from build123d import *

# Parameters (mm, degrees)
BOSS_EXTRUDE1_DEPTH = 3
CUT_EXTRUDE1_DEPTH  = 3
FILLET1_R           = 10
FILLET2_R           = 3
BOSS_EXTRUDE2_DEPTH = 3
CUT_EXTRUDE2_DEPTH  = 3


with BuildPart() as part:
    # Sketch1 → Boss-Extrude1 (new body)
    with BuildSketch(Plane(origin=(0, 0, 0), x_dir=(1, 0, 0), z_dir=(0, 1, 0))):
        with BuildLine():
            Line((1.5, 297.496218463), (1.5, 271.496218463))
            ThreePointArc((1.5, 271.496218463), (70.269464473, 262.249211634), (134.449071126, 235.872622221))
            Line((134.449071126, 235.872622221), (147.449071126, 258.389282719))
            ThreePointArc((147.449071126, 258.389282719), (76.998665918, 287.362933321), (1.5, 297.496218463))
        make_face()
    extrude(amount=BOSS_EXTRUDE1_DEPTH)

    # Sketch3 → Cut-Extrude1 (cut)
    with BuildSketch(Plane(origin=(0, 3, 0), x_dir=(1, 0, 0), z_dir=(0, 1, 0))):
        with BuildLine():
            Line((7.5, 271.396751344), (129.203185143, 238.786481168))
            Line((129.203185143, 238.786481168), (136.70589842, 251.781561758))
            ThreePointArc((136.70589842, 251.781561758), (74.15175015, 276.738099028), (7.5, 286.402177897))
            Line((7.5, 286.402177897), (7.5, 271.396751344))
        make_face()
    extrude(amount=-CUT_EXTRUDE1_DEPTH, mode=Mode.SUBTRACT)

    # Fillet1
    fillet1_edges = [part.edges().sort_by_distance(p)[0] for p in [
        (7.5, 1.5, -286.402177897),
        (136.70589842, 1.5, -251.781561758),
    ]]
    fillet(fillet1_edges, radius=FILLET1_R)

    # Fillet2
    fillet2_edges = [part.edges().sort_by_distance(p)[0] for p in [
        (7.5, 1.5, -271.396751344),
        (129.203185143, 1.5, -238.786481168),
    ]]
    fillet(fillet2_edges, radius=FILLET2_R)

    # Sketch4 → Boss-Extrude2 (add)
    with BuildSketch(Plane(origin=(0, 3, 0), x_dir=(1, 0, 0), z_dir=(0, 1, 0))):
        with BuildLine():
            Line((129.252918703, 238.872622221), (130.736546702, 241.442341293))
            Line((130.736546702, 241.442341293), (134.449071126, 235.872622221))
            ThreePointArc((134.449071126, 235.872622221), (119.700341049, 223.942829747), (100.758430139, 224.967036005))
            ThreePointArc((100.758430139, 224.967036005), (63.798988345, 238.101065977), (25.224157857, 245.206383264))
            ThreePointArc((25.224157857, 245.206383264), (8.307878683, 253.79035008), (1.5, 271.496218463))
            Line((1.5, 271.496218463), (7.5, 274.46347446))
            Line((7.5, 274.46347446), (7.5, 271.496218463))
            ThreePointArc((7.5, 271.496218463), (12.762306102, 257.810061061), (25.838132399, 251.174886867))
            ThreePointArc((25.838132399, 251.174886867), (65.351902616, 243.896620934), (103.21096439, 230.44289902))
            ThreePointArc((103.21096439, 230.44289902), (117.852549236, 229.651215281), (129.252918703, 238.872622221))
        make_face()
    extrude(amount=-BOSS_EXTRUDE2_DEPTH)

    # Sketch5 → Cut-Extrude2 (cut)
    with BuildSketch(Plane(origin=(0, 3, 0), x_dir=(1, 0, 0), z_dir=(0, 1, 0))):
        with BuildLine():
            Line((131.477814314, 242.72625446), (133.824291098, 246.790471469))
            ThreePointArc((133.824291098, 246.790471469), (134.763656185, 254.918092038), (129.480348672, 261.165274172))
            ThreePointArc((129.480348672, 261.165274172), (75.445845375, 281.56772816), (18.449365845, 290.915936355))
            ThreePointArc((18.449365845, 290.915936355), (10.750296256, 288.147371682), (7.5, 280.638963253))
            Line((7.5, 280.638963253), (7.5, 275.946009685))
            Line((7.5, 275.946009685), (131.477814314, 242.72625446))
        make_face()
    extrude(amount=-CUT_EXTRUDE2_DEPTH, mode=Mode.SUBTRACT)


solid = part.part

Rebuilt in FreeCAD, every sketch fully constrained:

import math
import FreeCAD as App
import Part
import Sketcher
Q = App.Units.Quantity


def edges_at(feature, points):
    """Names of the edges that pass closest to the given points."""
    edges = feature.Shape.Edges
    near = lambda p: min(range(len(edges)), key=lambda i: edges[i].distToShape(Part.Vertex(*p))[0])
    return sorted({f"Edge{near(p) + 1}" for p in points})

doc = App.newDocument("Part")
body = doc.addObject("PartDesign::Body", "Body")

sketch1 = body.newObject("Sketcher::SketchObject", "Sketch")
sketch1.AttachmentSupport = (doc.getObject("XZ_Plane"), [""])
sketch1.MapMode = "FlatFace"
sketch1.addGeometry([
    Part.LineSegment(App.Vector(2, -297, 0), App.Vector(2, -271, 0)),
    Part.ArcOfCircle(Part.Circle(App.Vector(0, 0, 0), App.Vector(0, 0, 1), 272), math.radians(-90), math.radians(-60)),
    Part.LineSegment(App.Vector(134, -236, 0), App.Vector(147, -258, 0)),
    Part.ArcOfCircle(Part.Circle(App.Vector(0, 0, 0), App.Vector(0, 0, 1), 297), math.radians(-90), math.radians(-60)),
], False)
sketch1.addConstraint([
    Sketcher.Constraint("Coincident", 0, 2, 1, 1),
    Sketcher.Constraint("Coincident", 1, 2, 2, 1),
    Sketcher.Constraint("Coincident", 2, 2, 3, 2),
    Sketcher.Constraint("Coincident", 3, 1, 0, 1),
    Sketcher.Constraint("Vertical", 0),
    Sketcher.Constraint("Coincident", 1, 3, -1, 1),
    Sketcher.Constraint("Coincident", 3, 3, -1, 1),
    Sketcher.Constraint("Radius", 3, 297.5),
    Sketcher.Constraint("DistanceY", 0, 1, 0, 2, 26.0),
    Sketcher.Constraint("Angle", 2, Q("-60 deg")),
    Sketcher.Constraint("DistanceX", -1, 1, 0, 2, 1.5),
    Sketcher.Constraint("DistanceX", -1, 1, 1, 2, 134.449071),
])
pad1 = body.newObject("PartDesign::Pad", "Pad")
pad1.Profile = sketch1
pad1.Length = 3
pad1.Reversed = True

sketch2 = body.newObject("Sketcher::SketchObject", "Sketch001")
sketch2.AttachmentSupport = (doc.getObject("XZ_Plane"), [""])
sketch2.MapMode = "FlatFace"
sketch2.AttachmentOffset = App.Placement(App.Vector(0, 0, -3), App.Rotation())
sketch2.addGeometry([
    Part.LineSegment(App.Vector(8, -271, 0), App.Vector(129, -239, 0)),
    Part.LineSegment(App.Vector(129, -239, 0), App.Vector(137, -252, 0)),
    Part.ArcOfCircle(Part.Circle(App.Vector(0, 0, 0), App.Vector(0, 0, 1), 287), math.radians(-88), math.radians(-62)),
    Part.LineSegment(App.Vector(8, -286, 0), App.Vector(8, -271, 0)),
], False)
sketch2.addConstraint([
    Sketcher.Constraint("Coincident", 0, 2, 1, 1),
    Sketcher.Constraint("Coincident", 1, 2, 2, 2),
    Sketcher.Constraint("Coincident", 2, 1, 3, 1),
    Sketcher.Constraint("Coincident", 3, 2, 0, 1),
    Sketcher.Constraint("Vertical", 3),
    Sketcher.Constraint("Coincident", 2, 3, -1, 1),
    Sketcher.Constraint("Angle", 0, Q("15 deg")),
    Sketcher.Constraint("Angle", 1, Q("-60 deg")),
    Sketcher.Constraint("DistanceX", -1, 1, 3, 2, 7.5),
    Sketcher.Constraint("Radius", 2, 286.500362),
    Sketcher.Constraint("DistanceX", -1, 1, 1, 2, 136.705898),
    Sketcher.Constraint("Distance", 0, 125.996409),
])
pocket1 = body.newObject("PartDesign::Pocket", "Pocket")
pocket1.Profile = sketch2
pocket1.Length = 3
pocket1.Reversed = True
doc.recompute()

fillet = body.newObject("PartDesign::Fillet", "Fillet")
fillet.Base = (pocket1, edges_at(pocket1, [(7.5, 1.5, -286.402), (136.706, 1.5, -251.782)]))
fillet.Radius = 10
doc.recompute()

fillet2 = body.newObject("PartDesign::Fillet", "Fillet001")
fillet2.Base = (fillet, edges_at(fillet, [(7.5, 1.5, -271.397), (129.203, 1.5, -238.786)]))
fillet2.Radius = 3

sketch3 = body.newObject("Sketcher::SketchObject", "Sketch002")
sketch3.AttachmentSupport = (doc.getObject("XZ_Plane"), [""])
sketch3.MapMode = "FlatFace"
sketch3.AttachmentOffset = App.Placement(App.Vector(0, 0, -3), App.Rotation())
sketch3.addGeometry([
    Part.LineSegment(App.Vector(130.7, -241.4, 0), App.Vector(129.3, -238.9, 0)),
    Part.ArcOfCircle(Part.Circle(App.Vector(111.6, -249.1, 0), App.Vector(0, 0, 1), 20.4), math.radians(30), math.radians(114)),
    Part.ArcOfCircle(Part.Circle(App.Vector(0, 0, 0), App.Vector(0, 0, 1), 252.5), math.radians(-84.13), math.radians(-65.87)),
    Part.ArcOfCircle(Part.Circle(App.Vector(27.9, -271.5, 0), App.Vector(0, 0, 1), 20.4), math.radians(96), math.radians(180)),
    Part.LineSegment(App.Vector(7.5, -271.5, 0), App.Vector(7.5, -274.5, 0)),
    Part.LineSegment(App.Vector(7.5, -274.5, 0), App.Vector(1.5, -271.5, 0)),
    Part.ArcOfCircle(Part.Circle(App.Vector(27.9, -271.5, 0), App.Vector(0, 0, 1), 26.4), math.radians(96), math.radians(180)),
    Part.ArcOfCircle(Part.Circle(App.Vector(0, 0, 0), App.Vector(0, 0, 1), 246.5), math.radians(-84.13), math.radians(-65.87)),
    Part.ArcOfCircle(Part.Circle(App.Vector(111.6, -249.1, 0), App.Vector(0, 0, 1), 26.4), math.radians(30), math.radians(114)),
    Part.LineSegment(App.Vector(134.4, -235.9, 0), App.Vector(130.7, -241.4, 0)),
], False)
sketch3.addConstraint([
    Sketcher.Constraint("Tangent", 0, 2, 1, 1),
    Sketcher.Constraint("Tangent", 1, 2, 2, 2),
    Sketcher.Constraint("Tangent", 2, 1, 3, 1),
    Sketcher.Constraint("Tangent", 3, 2, 4, 1),
    Sketcher.Constraint("Coincident", 4, 2, 5, 1),
    Sketcher.Constraint("Coincident", 5, 2, 6, 2),
    Sketcher.Constraint("Tangent", 6, 1, 7, 1),
    Sketcher.Constraint("Tangent", 7, 2, 8, 2),
    Sketcher.Constraint("Coincident", 8, 1, 9, 1),
    Sketcher.Constraint("Coincident", 9, 2, 0, 1),
    Sketcher.Constraint("Vertical", 4),
    Sketcher.Constraint("Coincident", 2, 3, -1, 1),
    Sketcher.Constraint("Coincident", 7, 3, -1, 1),
    Sketcher.Constraint("Coincident", 6, 3, 3, 3),
    Sketcher.Constraint("Coincident", 8, 3, 1, 3),
    Sketcher.Constraint("Equal", 1, 3),
    Sketcher.Constraint("Horizontal", 3, 2, 5, 2),
    Sketcher.Constraint("Equal", 5, 9),
    Sketcher.Constraint("Angle", 0, Q("120 deg")),
    Sketcher.Constraint("DistanceX", 5, 2, 3, 2, 6.0),
    Sketcher.Constraint("DistanceY", 0, 2, 8, 1, 3.0),
    Sketcher.Constraint("DistanceX", -1, 1, 3, 2, 7.5),
    Sketcher.Constraint("Radius", 1, 20.428569),
    Sketcher.Constraint("Radius", 2, 252.500362),
    Sketcher.Constraint("DistanceY", 1, 2, -1, 1, 230.442899),
    Sketcher.Constraint("DistanceY", 4, 2, 4, 1, 2.967256),
])
pad2 = body.newObject("PartDesign::Pad", "Pad001")
pad2.Profile = sketch3
pad2.Length = 3

sketch4 = body.newObject("Sketcher::SketchObject", "Sketch003")
sketch4.AttachmentSupport = (doc.getObject("XZ_Plane"), [""])
sketch4.MapMode = "FlatFace"
sketch4.AttachmentOffset = App.Placement(App.Vector(0, 0, -3), App.Rotation())
sketch4.addGeometry([
    Part.LineSegment(App.Vector(131.5, -242.7, 0), App.Vector(133.8, -246.8, 0)),
    Part.ArcOfCircle(Part.Circle(App.Vector(124.9, -251.9, 0), App.Vector(0, 0, 1), 10.3), math.radians(-64), math.radians(30)),
    Part.ArcOfCircle(Part.Circle(App.Vector(0, 0, 0), App.Vector(0, 0, 1), 291.5), math.radians(-86), math.radians(-64)),
    Part.ArcOfCircle(Part.Circle(App.Vector(17.8, -280.6, 0), App.Vector(0, 0, 1), 10.3), math.radians(180), math.radians(274)),
    Part.LineSegment(App.Vector(7.5, -280.6, 0), App.Vector(7.5, -275.9, 0)),
    Part.LineSegment(App.Vector(7.5, -275.9, 0), App.Vector(131.5, -242.7, 0)),
], False)
sketch4.addConstraint([
    Sketcher.Constraint("Tangent", 0, 2, 1, 2),
    Sketcher.Constraint("Tangent", 1, 1, 2, 2),
    Sketcher.Constraint("Tangent", 2, 1, 3, 2),
    Sketcher.Constraint("Tangent", 3, 1, 4, 1),
    Sketcher.Constraint("Coincident", 4, 2, 5, 1),
    Sketcher.Constraint("Coincident", 5, 2, 0, 1),
    Sketcher.Constraint("Vertical", 4),
    Sketcher.Constraint("Coincident", 2, 3, -1, 1),
    Sketcher.Constraint("Equal", 1, 3),
    Sketcher.Constraint("Angle", 0, Q("-60 deg")),
    Sketcher.Constraint("Angle", 5, Q("15 deg")),
    Sketcher.Constraint("DistanceX", -1, 1, 3, 1, 7.5),
    Sketcher.Constraint("Radius", 1, 10.297619),
    Sketcher.Constraint("Radius", 2, 291.500362),
    Sketcher.Constraint("Distance", 5, 128.351278),
    Sketcher.Constraint("DistanceY", 4, 1, 4, 2, 4.692954),
])
pocket2 = body.newObject("PartDesign::Pocket", "Pocket001")
pocket2.Profile = sketch4
pocket2.Length = 3
pocket2.Reversed = True

doc.recompute()
